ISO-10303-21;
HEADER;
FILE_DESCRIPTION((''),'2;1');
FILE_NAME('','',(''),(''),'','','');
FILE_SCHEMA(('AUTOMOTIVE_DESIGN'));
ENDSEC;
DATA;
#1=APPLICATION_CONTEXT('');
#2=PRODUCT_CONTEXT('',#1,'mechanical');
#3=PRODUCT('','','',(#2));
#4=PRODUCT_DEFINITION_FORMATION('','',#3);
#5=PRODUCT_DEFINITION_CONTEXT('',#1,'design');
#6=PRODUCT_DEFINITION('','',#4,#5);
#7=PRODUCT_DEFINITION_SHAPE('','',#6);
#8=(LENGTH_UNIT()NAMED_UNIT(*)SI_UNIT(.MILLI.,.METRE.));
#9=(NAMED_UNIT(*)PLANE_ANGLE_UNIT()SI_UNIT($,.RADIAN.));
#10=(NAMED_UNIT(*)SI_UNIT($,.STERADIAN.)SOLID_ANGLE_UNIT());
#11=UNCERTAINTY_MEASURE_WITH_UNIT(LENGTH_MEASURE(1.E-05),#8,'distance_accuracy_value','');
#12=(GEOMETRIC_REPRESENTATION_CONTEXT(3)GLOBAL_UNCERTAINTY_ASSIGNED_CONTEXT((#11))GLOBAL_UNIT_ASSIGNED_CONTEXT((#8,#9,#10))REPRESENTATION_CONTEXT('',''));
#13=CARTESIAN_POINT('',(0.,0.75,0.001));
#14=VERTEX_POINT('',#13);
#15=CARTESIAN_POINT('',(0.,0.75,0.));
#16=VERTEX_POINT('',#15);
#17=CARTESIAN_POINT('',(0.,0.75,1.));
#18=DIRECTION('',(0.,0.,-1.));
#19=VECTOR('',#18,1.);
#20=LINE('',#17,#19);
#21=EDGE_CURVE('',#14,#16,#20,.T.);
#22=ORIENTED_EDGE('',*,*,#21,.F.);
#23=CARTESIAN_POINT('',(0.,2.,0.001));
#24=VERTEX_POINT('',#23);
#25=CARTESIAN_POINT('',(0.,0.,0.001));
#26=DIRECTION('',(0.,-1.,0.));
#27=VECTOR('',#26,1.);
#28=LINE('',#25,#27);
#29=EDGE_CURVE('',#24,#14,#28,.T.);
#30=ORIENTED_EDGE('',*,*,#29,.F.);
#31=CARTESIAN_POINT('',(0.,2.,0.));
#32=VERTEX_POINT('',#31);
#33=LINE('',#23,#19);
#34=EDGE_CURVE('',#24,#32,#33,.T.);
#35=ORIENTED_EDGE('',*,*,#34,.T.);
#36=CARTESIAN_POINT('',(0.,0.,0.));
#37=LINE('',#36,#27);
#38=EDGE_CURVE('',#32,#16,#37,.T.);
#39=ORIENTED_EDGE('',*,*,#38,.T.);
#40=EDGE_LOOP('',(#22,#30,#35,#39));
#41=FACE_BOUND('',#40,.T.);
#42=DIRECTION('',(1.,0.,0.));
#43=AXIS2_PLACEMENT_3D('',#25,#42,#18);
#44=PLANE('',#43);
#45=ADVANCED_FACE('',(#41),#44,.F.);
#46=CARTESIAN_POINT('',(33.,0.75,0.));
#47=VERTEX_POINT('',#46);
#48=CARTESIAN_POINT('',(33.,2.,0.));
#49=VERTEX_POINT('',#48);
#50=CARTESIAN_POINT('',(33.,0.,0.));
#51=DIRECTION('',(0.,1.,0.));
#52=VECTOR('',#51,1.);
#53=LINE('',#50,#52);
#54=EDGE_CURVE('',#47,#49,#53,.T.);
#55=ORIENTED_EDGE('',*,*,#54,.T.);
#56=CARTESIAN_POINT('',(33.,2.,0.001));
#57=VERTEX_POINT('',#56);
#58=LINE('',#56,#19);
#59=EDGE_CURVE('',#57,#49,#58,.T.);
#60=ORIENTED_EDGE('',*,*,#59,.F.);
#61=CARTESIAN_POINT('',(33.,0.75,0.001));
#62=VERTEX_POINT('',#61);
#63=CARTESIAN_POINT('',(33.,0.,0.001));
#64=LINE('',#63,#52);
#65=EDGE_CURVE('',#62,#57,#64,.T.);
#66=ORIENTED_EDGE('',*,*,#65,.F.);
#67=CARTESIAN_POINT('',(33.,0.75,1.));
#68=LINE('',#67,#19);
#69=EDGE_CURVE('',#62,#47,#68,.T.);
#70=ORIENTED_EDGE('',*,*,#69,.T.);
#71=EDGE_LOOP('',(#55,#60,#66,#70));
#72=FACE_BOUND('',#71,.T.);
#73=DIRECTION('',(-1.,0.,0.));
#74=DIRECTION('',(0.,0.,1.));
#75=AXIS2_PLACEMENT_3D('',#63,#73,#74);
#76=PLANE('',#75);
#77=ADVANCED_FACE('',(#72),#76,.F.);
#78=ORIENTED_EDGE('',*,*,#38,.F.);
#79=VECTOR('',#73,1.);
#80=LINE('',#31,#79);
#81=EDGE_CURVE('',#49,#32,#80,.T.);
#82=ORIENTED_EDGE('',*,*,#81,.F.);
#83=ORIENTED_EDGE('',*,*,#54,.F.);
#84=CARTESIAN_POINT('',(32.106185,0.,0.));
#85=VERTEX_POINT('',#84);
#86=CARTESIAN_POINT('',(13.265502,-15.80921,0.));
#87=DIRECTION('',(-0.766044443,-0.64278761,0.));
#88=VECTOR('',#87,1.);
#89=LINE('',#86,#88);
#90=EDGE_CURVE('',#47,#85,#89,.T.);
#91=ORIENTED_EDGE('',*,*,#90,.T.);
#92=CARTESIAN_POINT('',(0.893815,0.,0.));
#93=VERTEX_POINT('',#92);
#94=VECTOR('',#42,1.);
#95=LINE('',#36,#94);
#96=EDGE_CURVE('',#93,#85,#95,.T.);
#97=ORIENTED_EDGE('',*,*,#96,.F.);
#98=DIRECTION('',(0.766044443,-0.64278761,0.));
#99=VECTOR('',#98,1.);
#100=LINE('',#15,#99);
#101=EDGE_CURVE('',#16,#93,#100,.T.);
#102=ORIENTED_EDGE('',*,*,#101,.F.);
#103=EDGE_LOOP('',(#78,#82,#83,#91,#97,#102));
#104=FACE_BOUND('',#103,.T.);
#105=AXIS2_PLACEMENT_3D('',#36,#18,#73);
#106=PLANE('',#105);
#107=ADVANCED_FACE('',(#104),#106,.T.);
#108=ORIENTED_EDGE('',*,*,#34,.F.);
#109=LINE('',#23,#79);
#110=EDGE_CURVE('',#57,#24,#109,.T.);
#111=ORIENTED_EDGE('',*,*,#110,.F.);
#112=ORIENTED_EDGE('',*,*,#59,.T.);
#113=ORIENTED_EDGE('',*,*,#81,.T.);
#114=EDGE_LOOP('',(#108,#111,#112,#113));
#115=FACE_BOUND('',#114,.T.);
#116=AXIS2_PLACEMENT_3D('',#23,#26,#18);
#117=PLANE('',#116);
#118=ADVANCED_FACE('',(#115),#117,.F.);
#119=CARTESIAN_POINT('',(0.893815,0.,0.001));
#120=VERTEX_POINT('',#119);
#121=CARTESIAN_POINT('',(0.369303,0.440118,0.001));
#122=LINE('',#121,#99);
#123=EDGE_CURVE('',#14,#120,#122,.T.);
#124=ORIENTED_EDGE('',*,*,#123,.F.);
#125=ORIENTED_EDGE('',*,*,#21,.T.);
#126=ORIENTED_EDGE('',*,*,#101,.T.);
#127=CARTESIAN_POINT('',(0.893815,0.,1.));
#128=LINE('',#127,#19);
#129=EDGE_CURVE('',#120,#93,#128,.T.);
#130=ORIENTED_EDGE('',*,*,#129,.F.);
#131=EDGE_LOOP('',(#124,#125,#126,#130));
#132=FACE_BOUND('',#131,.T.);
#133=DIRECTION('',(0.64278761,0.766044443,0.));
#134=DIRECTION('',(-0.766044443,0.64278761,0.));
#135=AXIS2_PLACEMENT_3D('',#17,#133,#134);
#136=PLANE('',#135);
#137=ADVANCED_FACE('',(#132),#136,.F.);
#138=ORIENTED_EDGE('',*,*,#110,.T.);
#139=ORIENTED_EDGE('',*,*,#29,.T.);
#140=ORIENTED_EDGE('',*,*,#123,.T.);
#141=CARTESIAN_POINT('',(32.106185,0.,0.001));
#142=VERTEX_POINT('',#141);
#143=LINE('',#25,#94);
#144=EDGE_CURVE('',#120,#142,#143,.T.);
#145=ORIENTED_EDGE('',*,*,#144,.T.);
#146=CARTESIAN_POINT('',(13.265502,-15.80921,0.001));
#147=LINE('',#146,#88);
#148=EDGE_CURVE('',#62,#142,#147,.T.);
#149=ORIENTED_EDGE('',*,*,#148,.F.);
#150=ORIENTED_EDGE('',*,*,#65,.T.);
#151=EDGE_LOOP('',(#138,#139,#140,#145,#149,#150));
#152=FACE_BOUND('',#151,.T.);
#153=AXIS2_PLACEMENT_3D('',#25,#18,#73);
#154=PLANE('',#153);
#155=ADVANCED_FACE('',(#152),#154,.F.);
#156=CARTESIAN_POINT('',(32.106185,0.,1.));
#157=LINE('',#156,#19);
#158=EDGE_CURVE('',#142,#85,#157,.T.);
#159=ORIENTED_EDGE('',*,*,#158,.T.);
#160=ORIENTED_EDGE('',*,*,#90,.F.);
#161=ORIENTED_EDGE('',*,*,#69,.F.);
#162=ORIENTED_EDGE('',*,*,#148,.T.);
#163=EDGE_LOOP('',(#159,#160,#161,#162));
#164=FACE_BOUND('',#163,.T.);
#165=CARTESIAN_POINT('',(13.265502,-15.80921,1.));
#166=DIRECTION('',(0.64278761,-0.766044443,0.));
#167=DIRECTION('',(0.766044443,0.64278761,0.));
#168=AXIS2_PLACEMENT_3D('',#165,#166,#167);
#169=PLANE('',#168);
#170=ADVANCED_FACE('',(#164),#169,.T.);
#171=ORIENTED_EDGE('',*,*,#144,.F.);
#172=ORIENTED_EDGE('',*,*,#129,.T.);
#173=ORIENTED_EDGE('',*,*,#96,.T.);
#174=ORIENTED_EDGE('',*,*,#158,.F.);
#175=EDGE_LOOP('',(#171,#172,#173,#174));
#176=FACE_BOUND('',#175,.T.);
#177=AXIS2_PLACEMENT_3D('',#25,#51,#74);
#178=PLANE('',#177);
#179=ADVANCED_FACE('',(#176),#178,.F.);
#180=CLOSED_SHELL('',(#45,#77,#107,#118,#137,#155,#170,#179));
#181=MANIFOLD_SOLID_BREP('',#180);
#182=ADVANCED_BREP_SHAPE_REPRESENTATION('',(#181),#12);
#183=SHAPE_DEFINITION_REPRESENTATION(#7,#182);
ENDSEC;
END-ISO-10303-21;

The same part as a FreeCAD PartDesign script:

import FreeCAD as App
import Part
import Sketcher

V = App.Vector
Q = App.Units.Quantity

doc = App.newDocument("Part")
body = doc.addObject("PartDesign::Body", "Body")

sketch1 = body.newObject("Sketcher::SketchObject", "Sketch")
sketch1.AttachmentSupport = (doc.getObject("XY_Plane"), [""])
sketch1.MapMode = "FlatFace"
sketch1.addGeometry([
    Part.LineSegment(V(0, 2, 0), V(0, 0, 0)),
    Part.LineSegment(V(0, 0, 0), V(33, 0, 0)),
    Part.LineSegment(V(33, 0, 0), V(33, 2, 0)),
    Part.LineSegment(V(33, 2, 0), V(0, 2, 0)),
], False)
sketch1.addConstraint([
    Sketcher.Constraint("Coincident", 0, 2, 1, 1),
    Sketcher.Constraint("Coincident", 1, 2, 2, 1),
    Sketcher.Constraint("Coincident", 2, 2, 3, 1),
    Sketcher.Constraint("Coincident", 3, 2, 0, 1),
    Sketcher.Constraint("Vertical", 0),
    Sketcher.Constraint("Horizontal", 1),
    Sketcher.Constraint("Vertical", 2),
    Sketcher.Constraint("Horizontal", 3),
    Sketcher.Constraint("Coincident", 0, 2, -1, 1),
    Sketcher.Constraint("DistanceX", 1, 1, 1, 2, 33.0),
    Sketcher.Constraint("DistanceY", 0, 2, 0, 1, 2.0),
])
pad1 = body.newObject("PartDesign::Pad", "Pad")
pad1.Profile = sketch1
pad1.Length = 0.001

sketch2 = body.newObject("Sketcher::SketchObject", "Sketch001")
sketch2.AttachmentSupport = (doc.getObject("XY_Plane"), [""])
sketch2.MapMode = "FlatFace"
sketch2.addGeometry([
    Part.LineSegment(V(33, 0, 0), V(32.1, 0, 0)),
    Part.LineSegment(V(32.1, 0, 0), V(33, 0.8, 0)),
    Part.LineSegment(V(33, 0.8, 0), V(33, 0, 0)),
    Part.LineSegment(V(0.9, 0, 0), V(0, 0, 0)),
    Part.LineSegment(V(0, 0, 0), V(0, 0.8, 0)),
    Part.LineSegment(V(0, 0.8, 0), V(0.9, 0, 0)),
], False)
sketch2.addConstraint([
    Sketcher.Constraint("Coincident", 0, 2, 1, 1),
    Sketcher.Constraint("Coincident", 1, 2, 2, 1),
    Sketcher.Constraint("Coincident", 2, 2, 0, 1),
    Sketcher.Constraint("Coincident", 3, 2, 4, 1),
    Sketcher.Constraint("Coincident", 4, 2, 5, 1),
    Sketcher.Constraint("Coincident", 5, 2, 3, 1),
    Sketcher.Constraint("Horizontal", 0),
    Sketcher.Constraint("Vertical", 2),
    Sketcher.Constraint("Horizontal", 3),
    Sketcher.Constraint("Vertical", 4),
    Sketcher.Constraint("Coincident", 3, 2, -1, 1),
    Sketcher.Constraint("PointOnObject", 0, 2, -1),
    Sketcher.Constraint("Horizontal", 1, 2, 4, 2),
    Sketcher.Constraint("Equal", 0, 3),
    Sketcher.Constraint("Angle", 1, Q("40 deg")),
    Sketcher.Constraint("DistanceX", -1, 1, 1, 2, 33.0),
    Sketcher.Constraint("DistanceY", 2, 2, 2, 1, 0.75),
])
pocket1 = body.newObject("PartDesign::Pocket", "Pocket")
pocket1.Profile = sketch2
pocket1.Length = 1
pocket1.Reversed = True

doc.recompute()
